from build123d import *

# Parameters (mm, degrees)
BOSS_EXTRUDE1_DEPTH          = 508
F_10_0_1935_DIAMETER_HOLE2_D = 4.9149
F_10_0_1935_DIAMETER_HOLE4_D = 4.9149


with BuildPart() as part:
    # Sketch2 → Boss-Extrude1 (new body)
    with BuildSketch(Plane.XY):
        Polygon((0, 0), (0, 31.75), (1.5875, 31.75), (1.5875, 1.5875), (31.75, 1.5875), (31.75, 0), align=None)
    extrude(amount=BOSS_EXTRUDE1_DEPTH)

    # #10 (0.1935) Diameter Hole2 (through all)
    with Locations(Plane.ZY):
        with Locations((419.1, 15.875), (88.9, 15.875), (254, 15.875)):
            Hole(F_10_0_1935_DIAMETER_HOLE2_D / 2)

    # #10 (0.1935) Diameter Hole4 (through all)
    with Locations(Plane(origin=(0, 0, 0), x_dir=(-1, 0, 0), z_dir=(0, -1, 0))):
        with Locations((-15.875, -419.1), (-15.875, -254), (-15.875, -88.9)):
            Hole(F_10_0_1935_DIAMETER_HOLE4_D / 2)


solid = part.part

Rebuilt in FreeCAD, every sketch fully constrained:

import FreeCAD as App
import Part
import Sketcher

V = App.Vector
Q = App.Units.Quantity


def add_polygon(sketch, points):
    """Adds a closed chain of lines whose ends are joined by coincident constraints."""
    first, n = sketch.GeometryCount, len(points)
    for a, b in zip(points, points[1:] + points[:1]):
        sketch.addGeometry(Part.LineSegment(App.Vector(*a, 0), App.Vector(*b, 0)), False)
    for i in range(n):
        sketch.addConstraint(Sketcher.Constraint("Coincident", first + i, 2, first + (i + 1) % n, 1))

doc = App.newDocument("Part")
body = doc.addObject("PartDesign::Body", "Body")

sketch1 = body.newObject("Sketcher::SketchObject", "Sketch")
sketch1.AttachmentSupport = (doc.getObject("XY_Plane"), [""])
sketch1.MapMode = "FlatFace"
add_polygon(sketch1, [(0, 31.8), (0, 0), (31.8, 0), (31.8, 1.6), (1.6, 1.6), (1.6, 31.8)])
sketch1.addConstraint([
    Sketcher.Constraint("Vertical", 0),
    Sketcher.Constraint("Horizontal", 1),
    Sketcher.Constraint("Vertical", 2),
    Sketcher.Constraint("Horizontal", 3),
    Sketcher.Constraint("Vertical", 4),
    Sketcher.Constraint("Horizontal", 5),
    Sketcher.Constraint("Coincident", 0, 2, -1, 1),
    Sketcher.Constraint("Equal", 1, 0),
    Sketcher.Constraint("Equal", 5, 2),
    Sketcher.Constraint("DistanceX", 1, 1, 1, 2, Q("1.25 in")),
    Sketcher.Constraint("DistanceX", 3, 2, 3, 1, Q("1.1875 in")),
])
pad1 = body.newObject("PartDesign::Pad", "Pad")
pad1.Profile = sketch1
pad1.Length = Q("20 in")

sketch2 = body.newObject("Sketcher::SketchObject", "Sketch001")
sketch2.AttachmentSupport = (doc.getObject("YZ_Plane"), [""])
sketch2.MapMode = "FlatFace"
sketch2.addGeometry([
    Part.Circle(V(15.9, 419.1, 0), V(0, 0, 1), 2.5),
    Part.Circle(V(15.9, 88.9, 0), V(0, 0, 1), 2.5),
    Part.Circle(V(15.9, 254, 0), V(0, 0, 1), 2.5),
], False)
sketch2.addConstraint([
    Sketcher.Constraint("Equal", 0, 1),
    Sketcher.Constraint("Equal", 1, 2),
    Sketcher.Constraint("Vertical", 0, 3, 1, 3),
    Sketcher.Constraint("Vertical", 1, 3, 2, 3),
    Sketcher.Constraint("DistanceY", -1, 1, 2, 3, Q("10 in")),
    Sketcher.Constraint("DistanceY", 1, 3, 0, 3, Q("13 in")),
    Sketcher.Constraint("Diameter", 0, Q("0.1935 in")),
    Sketcher.Constraint("DistanceY", -1, 1, 0, 3, Q("16.5 in")),
    Sketcher.Constraint("DistanceX", -1, 1, 0, 3, Q("0.625 in")),
])
doc.recompute()
hole = body.newObject("PartDesign::Hole", "Hole")
hole.Profile = sketch2
hole.ThreadType = "None"
hole.Diameter = Q("0.1935 in")
hole.DepthType = "ThroughAll"
hole.Reversed = True

sketch3 = body.newObject("Sketcher::SketchObject", "Sketch002")
sketch3.AttachmentSupport = (doc.getObject("XZ_Plane"), [""])
sketch3.MapMode = "FlatFace"
sketch3.addGeometry([
    Part.Circle(V(15.9, 419.1, 0), V(0, 0, 1), 2.5),
    Part.Circle(V(15.9, 254, 0), V(0, 0, 1), 2.5),
    Part.Circle(V(15.9, 88.9, 0), V(0, 0, 1), 2.5),
], False)
sketch3.addConstraint([
    Sketcher.Constraint("Equal", 0, 1),
    Sketcher.Constraint("Equal", 1, 2),
    Sketcher.Constraint("Vertical", 0, 3, 1, 3),
    Sketcher.Constraint("Vertical", 1, 3, 2, 3),
    Sketcher.Constraint("DistanceY", -1, 1, 1, 3, Q("10 in")),
    Sketcher.Constraint("DistanceY", 2, 3, 0, 3, Q("13 in")),
    Sketcher.Constraint("Diameter", 0, Q("0.1935 in")),
    Sketcher.Constraint("DistanceY", -1, 1, 0, 3, Q("16.5 in")),
    Sketcher.Constraint("DistanceX", -1, 1, 0, 3, Q("0.625 in")),
])
doc.recompute()
hole2 = body.newObject("PartDesign::Hole", "Hole001")
hole2.Profile = sketch3
hole2.ThreadType = "None"
hole2.Diameter = Q("0.1935 in")
hole2.DepthType = "ThroughAll"

doc.recompute()
